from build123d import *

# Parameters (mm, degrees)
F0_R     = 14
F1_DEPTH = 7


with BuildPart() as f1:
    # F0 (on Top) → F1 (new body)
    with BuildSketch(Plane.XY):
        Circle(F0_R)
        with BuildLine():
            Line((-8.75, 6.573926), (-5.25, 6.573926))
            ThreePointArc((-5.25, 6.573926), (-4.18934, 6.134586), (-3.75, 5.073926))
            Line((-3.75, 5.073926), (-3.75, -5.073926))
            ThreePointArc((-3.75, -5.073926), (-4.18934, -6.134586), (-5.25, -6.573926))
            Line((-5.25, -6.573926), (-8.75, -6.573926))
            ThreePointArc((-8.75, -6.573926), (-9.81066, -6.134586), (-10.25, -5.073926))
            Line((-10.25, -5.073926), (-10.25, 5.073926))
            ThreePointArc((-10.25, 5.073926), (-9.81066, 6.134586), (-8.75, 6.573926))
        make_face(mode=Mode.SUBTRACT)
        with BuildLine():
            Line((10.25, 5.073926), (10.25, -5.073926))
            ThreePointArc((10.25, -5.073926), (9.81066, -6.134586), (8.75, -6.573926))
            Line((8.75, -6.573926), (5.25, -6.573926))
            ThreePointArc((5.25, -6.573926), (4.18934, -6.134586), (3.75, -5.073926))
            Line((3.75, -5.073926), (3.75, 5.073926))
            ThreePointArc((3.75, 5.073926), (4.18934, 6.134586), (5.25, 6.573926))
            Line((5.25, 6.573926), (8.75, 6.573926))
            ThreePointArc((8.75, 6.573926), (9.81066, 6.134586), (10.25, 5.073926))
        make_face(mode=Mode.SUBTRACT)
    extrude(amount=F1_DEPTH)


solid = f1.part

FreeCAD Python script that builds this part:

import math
import FreeCAD as App
import Part
import Sketcher
Q = App.Units.Quantity

doc = App.newDocument("Part")
body = doc.addObject("PartDesign::Body", "Body")

# Sketch on XY plane
sketch1 = body.newObject("Sketcher::SketchObject", "Sketch")
sketch1.AttachmentSupport = (doc.getObject("XY_Plane"), [""])
sketch1.MapMode = "FlatFace"
sketch1.addGeometry([
    Part.Circle(App.Vector(0, 0, 0), App.Vector(0, 0, 1), 14),  # 0
    Part.ArcOfCircle(Part.Circle(App.Vector(-8.7, 5.1, 0), App.Vector(0, 0, 1), 1.5), math.radians(90), math.radians(180)),  # 1
    Part.LineSegment(App.Vector(-8.8, 6.6, 0), App.Vector(-5.2, 6.6, 0)),  # 2
    Part.ArcOfCircle(Part.Circle(App.Vector(-5.3, 5.1, 0), App.Vector(0, 0, 1), 1.5), math.radians(0), math.radians(90)),  # 3
    Part.LineSegment(App.Vector(-3.8, 5.1, 0), App.Vector(-3.8, -5.1, 0)),  # 4
    Part.ArcOfCircle(Part.Circle(App.Vector(-5.3, -5.1, 0), App.Vector(0, 0, 1), 1.5), math.radians(-90), math.radians(0)),  # 5
    Part.LineSegment(App.Vector(-5.2, -6.6, 0), App.Vector(-8.8, -6.6, 0)),  # 6
    Part.ArcOfCircle(Part.Circle(App.Vector(-8.7, -5.1, 0), App.Vector(0, 0, 1), 1.5), math.radians(-180), math.radians(-90)),  # 7
    Part.LineSegment(App.Vector(-10.2, -5.1, 0), App.Vector(-10.2, 5.1, 0)),  # 8
    Part.ArcOfCircle(Part.Circle(App.Vector(8.7, 5.1, 0), App.Vector(0, 0, 1), 1.5), math.radians(0), math.radians(90)),  # 9
    Part.LineSegment(App.Vector(10.2, 5.1, 0), App.Vector(10.2, -5.1, 0)),  # 10
    Part.ArcOfCircle(Part.Circle(App.Vector(8.7, -5.1, 0), App.Vector(0, 0, 1), 1.5), math.radians(-90), math.radians(0)),  # 11
    Part.LineSegment(App.Vector(8.8, -6.6, 0), App.Vector(5.2, -6.6, 0)),  # 12
    Part.ArcOfCircle(Part.Circle(App.Vector(5.3, -5.1, 0), App.Vector(0, 0, 1), 1.5), math.radians(-180), math.radians(-90)),  # 13
    Part.LineSegment(App.Vector(3.8, -5.1, 0), App.Vector(3.8, 5.1, 0)),  # 14
    Part.ArcOfCircle(Part.Circle(App.Vector(5.3, 5.1, 0), App.Vector(0, 0, 1), 1.5), math.radians(90), math.radians(180)),  # 15
    Part.LineSegment(App.Vector(5.2, 6.6, 0), App.Vector(8.8, 6.6, 0)),  # 16
], False)
sketch1.addConstraint([
    Sketcher.Constraint("Tangent", 1, 1, 2, 1),
    Sketcher.Constraint("Tangent", 2, 2, 3, 2),
    Sketcher.Constraint("Tangent", 3, 1, 4, 1),
    Sketcher.Constraint("Tangent", 4, 2, 5, 2),
    Sketcher.Constraint("Tangent", 5, 1, 6, 1),
    Sketcher.Constraint("Tangent", 6, 2, 7, 2),
    Sketcher.Constraint("Tangent", 7, 1, 8, 1),
    Sketcher.Constraint("Tangent", 8, 2, 1, 2),
    Sketcher.Constraint("Tangent", 9, 1, 10, 1),
    Sketcher.Constraint("Tangent", 10, 2, 11, 2),
    Sketcher.Constraint("Tangent", 11, 1, 12, 1),
    Sketcher.Constraint("Tangent", 12, 2, 13, 2),
    Sketcher.Constraint("Tangent", 13, 1, 14, 1),
    Sketcher.Constraint("Tangent", 14, 2, 15, 2),
    Sketcher.Constraint("Tangent", 15, 1, 16, 1),
    Sketcher.Constraint("Tangent", 16, 2, 9, 2),
    Sketcher.Constraint("Horizontal", 2),
    Sketcher.Constraint("Vertical", 4),
    Sketcher.Constraint("Horizontal", 6),
    Sketcher.Constraint("Vertical", 8),
    Sketcher.Constraint("Vertical", 10),
    Sketcher.Constraint("Horizontal", 12),
    Sketcher.Constraint("Vertical", 14),
    Sketcher.Constraint("Horizontal", 16),
    Sketcher.Constraint("Coincident", 0, 3, -1, 1),
    Sketcher.Constraint("Equal", 1, 3),
    Sketcher.Constraint("Equal", 3, 5),
    Sketcher.Constraint("Equal", 5, 7),
    Sketcher.Constraint("Equal", 7, 9),
    Sketcher.Constraint("Equal", 9, 11),
    Sketcher.Constraint("Equal", 11, 13),
    Sketcher.Constraint("Equal", 13, 15),
    Sketcher.Constraint("Symmetric", 7, 3, 9, 3, -1, 1),
    Sketcher.Constraint("Symmetric", 3, 3, 13, 3, -1, 1),
    Sketcher.Constraint("Horizontal", 3, 3, 9, 3),
    Sketcher.Constraint("Diameter", 0, Q("28 mm")),
    Sketcher.Constraint("Radius", 1, Q("1.500001 mm")),
    Sketcher.Constraint("DistanceX", 2, 1, 2, 2, Q("3.5 mm")),
    Sketcher.Constraint("DistanceX", 3, 3, 9, 3, Q("14 mm")),
    Sketcher.Constraint("DistanceY", 4, 2, 4, 1, Q("10.147852 mm")),
])
pad1 = body.newObject("PartDesign::Pad", "Pad")
pad1.Profile = sketch1
pad1.Length = 7

doc.recompute()
